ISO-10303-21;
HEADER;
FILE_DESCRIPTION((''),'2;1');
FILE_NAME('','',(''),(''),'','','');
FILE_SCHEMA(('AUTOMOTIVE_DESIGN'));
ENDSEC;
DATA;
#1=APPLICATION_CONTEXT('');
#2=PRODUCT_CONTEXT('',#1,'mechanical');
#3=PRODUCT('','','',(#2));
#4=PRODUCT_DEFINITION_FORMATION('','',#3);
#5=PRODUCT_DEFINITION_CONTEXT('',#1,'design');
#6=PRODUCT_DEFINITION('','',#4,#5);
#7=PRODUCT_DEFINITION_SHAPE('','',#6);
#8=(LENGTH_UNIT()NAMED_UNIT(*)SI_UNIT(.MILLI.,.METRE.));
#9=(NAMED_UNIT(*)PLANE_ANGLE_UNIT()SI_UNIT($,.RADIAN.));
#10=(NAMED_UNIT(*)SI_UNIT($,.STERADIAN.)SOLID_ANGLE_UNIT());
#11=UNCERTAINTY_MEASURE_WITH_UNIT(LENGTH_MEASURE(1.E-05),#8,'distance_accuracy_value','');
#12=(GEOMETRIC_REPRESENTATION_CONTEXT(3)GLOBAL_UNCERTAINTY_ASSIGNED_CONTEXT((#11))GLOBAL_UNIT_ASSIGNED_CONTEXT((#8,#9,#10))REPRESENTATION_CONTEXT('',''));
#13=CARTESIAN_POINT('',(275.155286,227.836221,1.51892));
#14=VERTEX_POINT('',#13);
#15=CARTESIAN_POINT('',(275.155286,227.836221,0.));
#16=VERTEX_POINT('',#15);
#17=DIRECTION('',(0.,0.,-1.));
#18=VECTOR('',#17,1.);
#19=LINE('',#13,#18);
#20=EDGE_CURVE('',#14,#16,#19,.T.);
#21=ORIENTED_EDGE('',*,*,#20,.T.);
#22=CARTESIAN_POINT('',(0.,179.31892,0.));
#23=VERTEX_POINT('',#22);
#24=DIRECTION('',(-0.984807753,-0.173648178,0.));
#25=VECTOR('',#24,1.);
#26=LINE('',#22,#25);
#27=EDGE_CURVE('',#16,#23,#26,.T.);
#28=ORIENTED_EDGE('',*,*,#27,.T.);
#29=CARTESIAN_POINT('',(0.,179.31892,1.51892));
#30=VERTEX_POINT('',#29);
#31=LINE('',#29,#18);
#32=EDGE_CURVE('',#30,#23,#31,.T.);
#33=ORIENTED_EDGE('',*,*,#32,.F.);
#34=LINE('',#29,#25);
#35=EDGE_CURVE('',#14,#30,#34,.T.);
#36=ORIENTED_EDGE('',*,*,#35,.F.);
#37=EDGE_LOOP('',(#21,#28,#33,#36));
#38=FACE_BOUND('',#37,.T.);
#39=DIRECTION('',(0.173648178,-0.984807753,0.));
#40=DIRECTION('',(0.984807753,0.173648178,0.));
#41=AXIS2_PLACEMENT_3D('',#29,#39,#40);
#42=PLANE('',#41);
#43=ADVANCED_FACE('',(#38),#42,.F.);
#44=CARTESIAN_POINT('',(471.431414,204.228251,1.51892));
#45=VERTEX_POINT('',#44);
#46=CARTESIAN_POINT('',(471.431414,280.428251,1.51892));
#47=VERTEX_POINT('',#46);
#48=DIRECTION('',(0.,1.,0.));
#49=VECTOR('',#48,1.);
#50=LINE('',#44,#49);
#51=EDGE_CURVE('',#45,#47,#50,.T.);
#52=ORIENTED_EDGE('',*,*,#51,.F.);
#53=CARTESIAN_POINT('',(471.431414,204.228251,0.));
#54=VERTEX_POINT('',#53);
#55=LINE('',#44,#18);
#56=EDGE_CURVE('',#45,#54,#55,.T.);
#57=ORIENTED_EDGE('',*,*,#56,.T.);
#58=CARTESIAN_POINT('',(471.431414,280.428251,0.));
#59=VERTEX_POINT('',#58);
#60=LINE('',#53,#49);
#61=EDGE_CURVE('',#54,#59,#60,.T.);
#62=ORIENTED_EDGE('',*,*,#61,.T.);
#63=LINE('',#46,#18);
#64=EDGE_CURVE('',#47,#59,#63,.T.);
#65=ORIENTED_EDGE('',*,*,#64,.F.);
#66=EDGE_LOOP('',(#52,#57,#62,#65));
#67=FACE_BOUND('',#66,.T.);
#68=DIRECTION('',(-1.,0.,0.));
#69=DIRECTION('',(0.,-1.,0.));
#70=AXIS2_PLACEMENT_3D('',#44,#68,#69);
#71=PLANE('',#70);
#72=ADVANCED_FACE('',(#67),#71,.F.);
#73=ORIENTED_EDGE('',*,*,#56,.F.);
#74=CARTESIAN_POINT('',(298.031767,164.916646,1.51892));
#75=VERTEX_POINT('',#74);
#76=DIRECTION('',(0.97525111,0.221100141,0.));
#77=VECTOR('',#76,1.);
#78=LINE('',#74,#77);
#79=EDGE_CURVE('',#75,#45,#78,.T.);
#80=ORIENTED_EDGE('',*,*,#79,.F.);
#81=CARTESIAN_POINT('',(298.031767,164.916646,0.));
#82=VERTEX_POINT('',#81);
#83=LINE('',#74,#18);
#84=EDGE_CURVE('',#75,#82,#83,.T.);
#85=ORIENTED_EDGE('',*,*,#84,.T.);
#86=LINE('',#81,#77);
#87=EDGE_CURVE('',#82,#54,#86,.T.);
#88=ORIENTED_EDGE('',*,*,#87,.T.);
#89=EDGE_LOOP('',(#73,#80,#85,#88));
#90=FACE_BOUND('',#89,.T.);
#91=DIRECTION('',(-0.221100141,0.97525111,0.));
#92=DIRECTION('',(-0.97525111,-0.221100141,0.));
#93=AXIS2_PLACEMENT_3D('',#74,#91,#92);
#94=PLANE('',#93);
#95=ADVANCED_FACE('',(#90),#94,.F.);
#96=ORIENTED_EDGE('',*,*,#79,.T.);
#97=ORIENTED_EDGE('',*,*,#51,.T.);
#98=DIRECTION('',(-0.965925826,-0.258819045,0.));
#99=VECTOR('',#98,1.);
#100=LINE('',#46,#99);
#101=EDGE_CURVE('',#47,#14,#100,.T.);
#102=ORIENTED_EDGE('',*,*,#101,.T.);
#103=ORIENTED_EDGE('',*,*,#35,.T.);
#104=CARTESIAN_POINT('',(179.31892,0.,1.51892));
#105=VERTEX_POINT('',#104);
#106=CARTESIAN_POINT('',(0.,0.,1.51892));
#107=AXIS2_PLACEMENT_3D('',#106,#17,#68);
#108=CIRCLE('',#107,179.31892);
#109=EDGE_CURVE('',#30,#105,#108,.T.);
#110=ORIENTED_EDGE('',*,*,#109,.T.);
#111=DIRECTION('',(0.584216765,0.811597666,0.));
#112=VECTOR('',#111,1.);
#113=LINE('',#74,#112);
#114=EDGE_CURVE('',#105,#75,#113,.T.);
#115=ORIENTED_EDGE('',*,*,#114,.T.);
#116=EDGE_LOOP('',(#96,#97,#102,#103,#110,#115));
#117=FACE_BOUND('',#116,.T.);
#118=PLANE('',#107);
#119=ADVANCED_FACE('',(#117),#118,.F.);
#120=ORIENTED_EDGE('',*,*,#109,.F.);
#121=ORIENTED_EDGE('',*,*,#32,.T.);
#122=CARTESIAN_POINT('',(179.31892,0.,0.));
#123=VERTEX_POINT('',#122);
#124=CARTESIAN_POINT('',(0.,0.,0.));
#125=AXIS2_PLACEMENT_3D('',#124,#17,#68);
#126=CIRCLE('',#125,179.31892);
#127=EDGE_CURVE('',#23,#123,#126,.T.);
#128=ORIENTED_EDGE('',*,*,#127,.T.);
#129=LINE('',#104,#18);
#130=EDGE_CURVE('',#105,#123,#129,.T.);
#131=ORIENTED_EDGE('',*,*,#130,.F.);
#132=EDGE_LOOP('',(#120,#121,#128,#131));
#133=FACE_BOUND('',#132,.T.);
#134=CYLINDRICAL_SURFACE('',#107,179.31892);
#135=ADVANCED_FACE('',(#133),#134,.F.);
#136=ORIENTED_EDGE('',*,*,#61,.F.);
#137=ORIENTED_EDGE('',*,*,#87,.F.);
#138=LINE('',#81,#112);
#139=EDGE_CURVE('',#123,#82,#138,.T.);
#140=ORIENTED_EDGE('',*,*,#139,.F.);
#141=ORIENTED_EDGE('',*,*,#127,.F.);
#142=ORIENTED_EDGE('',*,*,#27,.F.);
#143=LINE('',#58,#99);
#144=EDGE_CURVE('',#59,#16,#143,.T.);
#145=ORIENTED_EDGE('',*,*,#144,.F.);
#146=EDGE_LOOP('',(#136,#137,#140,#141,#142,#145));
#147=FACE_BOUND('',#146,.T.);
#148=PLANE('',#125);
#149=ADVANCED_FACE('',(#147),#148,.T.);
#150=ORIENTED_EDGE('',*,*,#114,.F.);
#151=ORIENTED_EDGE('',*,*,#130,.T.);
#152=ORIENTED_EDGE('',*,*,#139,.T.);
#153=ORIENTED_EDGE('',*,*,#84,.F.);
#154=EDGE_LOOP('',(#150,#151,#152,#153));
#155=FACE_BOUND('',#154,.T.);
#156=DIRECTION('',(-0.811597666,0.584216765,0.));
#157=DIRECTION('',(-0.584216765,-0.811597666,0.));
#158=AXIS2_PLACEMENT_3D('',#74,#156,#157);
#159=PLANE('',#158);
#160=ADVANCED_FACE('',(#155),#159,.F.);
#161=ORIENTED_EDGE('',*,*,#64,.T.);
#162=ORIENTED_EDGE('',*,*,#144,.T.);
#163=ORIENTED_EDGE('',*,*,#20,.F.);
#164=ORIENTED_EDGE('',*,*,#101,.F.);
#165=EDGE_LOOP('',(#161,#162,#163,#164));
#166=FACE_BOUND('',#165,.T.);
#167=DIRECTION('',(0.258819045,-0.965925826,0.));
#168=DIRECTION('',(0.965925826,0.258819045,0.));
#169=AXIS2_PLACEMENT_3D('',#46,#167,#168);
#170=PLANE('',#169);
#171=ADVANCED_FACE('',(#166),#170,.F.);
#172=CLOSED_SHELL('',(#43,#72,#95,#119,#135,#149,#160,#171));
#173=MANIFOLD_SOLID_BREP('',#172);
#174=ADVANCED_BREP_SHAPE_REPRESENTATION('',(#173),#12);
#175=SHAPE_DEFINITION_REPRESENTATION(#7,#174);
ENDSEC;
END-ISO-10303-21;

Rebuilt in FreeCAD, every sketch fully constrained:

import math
import FreeCAD as App
import Part
import Sketcher
Q = App.Units.Quantity

doc = App.newDocument("Part")
body = doc.addObject("PartDesign::Body", "Body")

# Sketch on XY plane
sketch1 = body.newObject("Sketcher::SketchObject", "Sketch")
sketch1.AttachmentSupport = (doc.getObject("XY_Plane"), [""])
sketch1.MapMode = "FlatFace"
sketch1.addGeometry([
    Part.LineSegment(App.Vector(275, 228, 0), App.Vector(0, 179, 0)),  # 0
    Part.ArcOfCircle(Part.Circle(App.Vector(0, 0, 0), App.Vector(0, 0, 1), 179), math.radians(0), math.radians(90)),  # 1
    Part.LineSegment(App.Vector(179, 0, 0), App.Vector(298, 165, 0)),  # 2
    Part.LineSegment(App.Vector(298, 165, 0), App.Vector(471, 204, 0)),  # 3
    Part.LineSegment(App.Vector(471, 204, 0), App.Vector(471, 280, 0)),  # 4
    Part.LineSegment(App.Vector(471, 280, 0), App.Vector(275, 228, 0)),  # 5
], False)
sketch1.addConstraint([
    Sketcher.Constraint("Coincident", 0, 2, 1, 2),
    Sketcher.Constraint("Coincident", 1, 1, 2, 1),
    Sketcher.Constraint("Coincident", 2, 2, 3, 1),
    Sketcher.Constraint("Coincident", 3, 2, 4, 1),
    Sketcher.Constraint("Coincident", 4, 2, 5, 1),
    Sketcher.Constraint("Coincident", 5, 2, 0, 1),
    Sketcher.Constraint("Vertical", 4),
    Sketcher.Constraint("Coincident", 1, 3, -1, 1),
    Sketcher.Constraint("PointOnObject", 0, 2, -2),
    Sketcher.Constraint("PointOnObject", 1, 1, -1),
    Sketcher.Constraint("Equal", 2, 5),
    Sketcher.Constraint("DistanceY", 4, 1, 4, 2, Q("3 in")),
    Sketcher.Constraint("Distance", 0, Q("11 in")),
    Sketcher.Constraint("Distance", 2, Q("8 in")),
    Sketcher.Constraint("Distance", 3, Q("7 in")),
    Sketcher.Constraint("Angle", 0, Q("-170 deg")),
    Sketcher.Constraint("Angle", 5, Q("-165 deg")),
    Sketcher.Constraint("Radius", 1, Q("7.0598 in")),
])
pad1 = body.newObject("PartDesign::Pad", "Pad")
pad1.Profile = sketch1
pad1.Length = Q("0.0598 in")

doc.recompute()
